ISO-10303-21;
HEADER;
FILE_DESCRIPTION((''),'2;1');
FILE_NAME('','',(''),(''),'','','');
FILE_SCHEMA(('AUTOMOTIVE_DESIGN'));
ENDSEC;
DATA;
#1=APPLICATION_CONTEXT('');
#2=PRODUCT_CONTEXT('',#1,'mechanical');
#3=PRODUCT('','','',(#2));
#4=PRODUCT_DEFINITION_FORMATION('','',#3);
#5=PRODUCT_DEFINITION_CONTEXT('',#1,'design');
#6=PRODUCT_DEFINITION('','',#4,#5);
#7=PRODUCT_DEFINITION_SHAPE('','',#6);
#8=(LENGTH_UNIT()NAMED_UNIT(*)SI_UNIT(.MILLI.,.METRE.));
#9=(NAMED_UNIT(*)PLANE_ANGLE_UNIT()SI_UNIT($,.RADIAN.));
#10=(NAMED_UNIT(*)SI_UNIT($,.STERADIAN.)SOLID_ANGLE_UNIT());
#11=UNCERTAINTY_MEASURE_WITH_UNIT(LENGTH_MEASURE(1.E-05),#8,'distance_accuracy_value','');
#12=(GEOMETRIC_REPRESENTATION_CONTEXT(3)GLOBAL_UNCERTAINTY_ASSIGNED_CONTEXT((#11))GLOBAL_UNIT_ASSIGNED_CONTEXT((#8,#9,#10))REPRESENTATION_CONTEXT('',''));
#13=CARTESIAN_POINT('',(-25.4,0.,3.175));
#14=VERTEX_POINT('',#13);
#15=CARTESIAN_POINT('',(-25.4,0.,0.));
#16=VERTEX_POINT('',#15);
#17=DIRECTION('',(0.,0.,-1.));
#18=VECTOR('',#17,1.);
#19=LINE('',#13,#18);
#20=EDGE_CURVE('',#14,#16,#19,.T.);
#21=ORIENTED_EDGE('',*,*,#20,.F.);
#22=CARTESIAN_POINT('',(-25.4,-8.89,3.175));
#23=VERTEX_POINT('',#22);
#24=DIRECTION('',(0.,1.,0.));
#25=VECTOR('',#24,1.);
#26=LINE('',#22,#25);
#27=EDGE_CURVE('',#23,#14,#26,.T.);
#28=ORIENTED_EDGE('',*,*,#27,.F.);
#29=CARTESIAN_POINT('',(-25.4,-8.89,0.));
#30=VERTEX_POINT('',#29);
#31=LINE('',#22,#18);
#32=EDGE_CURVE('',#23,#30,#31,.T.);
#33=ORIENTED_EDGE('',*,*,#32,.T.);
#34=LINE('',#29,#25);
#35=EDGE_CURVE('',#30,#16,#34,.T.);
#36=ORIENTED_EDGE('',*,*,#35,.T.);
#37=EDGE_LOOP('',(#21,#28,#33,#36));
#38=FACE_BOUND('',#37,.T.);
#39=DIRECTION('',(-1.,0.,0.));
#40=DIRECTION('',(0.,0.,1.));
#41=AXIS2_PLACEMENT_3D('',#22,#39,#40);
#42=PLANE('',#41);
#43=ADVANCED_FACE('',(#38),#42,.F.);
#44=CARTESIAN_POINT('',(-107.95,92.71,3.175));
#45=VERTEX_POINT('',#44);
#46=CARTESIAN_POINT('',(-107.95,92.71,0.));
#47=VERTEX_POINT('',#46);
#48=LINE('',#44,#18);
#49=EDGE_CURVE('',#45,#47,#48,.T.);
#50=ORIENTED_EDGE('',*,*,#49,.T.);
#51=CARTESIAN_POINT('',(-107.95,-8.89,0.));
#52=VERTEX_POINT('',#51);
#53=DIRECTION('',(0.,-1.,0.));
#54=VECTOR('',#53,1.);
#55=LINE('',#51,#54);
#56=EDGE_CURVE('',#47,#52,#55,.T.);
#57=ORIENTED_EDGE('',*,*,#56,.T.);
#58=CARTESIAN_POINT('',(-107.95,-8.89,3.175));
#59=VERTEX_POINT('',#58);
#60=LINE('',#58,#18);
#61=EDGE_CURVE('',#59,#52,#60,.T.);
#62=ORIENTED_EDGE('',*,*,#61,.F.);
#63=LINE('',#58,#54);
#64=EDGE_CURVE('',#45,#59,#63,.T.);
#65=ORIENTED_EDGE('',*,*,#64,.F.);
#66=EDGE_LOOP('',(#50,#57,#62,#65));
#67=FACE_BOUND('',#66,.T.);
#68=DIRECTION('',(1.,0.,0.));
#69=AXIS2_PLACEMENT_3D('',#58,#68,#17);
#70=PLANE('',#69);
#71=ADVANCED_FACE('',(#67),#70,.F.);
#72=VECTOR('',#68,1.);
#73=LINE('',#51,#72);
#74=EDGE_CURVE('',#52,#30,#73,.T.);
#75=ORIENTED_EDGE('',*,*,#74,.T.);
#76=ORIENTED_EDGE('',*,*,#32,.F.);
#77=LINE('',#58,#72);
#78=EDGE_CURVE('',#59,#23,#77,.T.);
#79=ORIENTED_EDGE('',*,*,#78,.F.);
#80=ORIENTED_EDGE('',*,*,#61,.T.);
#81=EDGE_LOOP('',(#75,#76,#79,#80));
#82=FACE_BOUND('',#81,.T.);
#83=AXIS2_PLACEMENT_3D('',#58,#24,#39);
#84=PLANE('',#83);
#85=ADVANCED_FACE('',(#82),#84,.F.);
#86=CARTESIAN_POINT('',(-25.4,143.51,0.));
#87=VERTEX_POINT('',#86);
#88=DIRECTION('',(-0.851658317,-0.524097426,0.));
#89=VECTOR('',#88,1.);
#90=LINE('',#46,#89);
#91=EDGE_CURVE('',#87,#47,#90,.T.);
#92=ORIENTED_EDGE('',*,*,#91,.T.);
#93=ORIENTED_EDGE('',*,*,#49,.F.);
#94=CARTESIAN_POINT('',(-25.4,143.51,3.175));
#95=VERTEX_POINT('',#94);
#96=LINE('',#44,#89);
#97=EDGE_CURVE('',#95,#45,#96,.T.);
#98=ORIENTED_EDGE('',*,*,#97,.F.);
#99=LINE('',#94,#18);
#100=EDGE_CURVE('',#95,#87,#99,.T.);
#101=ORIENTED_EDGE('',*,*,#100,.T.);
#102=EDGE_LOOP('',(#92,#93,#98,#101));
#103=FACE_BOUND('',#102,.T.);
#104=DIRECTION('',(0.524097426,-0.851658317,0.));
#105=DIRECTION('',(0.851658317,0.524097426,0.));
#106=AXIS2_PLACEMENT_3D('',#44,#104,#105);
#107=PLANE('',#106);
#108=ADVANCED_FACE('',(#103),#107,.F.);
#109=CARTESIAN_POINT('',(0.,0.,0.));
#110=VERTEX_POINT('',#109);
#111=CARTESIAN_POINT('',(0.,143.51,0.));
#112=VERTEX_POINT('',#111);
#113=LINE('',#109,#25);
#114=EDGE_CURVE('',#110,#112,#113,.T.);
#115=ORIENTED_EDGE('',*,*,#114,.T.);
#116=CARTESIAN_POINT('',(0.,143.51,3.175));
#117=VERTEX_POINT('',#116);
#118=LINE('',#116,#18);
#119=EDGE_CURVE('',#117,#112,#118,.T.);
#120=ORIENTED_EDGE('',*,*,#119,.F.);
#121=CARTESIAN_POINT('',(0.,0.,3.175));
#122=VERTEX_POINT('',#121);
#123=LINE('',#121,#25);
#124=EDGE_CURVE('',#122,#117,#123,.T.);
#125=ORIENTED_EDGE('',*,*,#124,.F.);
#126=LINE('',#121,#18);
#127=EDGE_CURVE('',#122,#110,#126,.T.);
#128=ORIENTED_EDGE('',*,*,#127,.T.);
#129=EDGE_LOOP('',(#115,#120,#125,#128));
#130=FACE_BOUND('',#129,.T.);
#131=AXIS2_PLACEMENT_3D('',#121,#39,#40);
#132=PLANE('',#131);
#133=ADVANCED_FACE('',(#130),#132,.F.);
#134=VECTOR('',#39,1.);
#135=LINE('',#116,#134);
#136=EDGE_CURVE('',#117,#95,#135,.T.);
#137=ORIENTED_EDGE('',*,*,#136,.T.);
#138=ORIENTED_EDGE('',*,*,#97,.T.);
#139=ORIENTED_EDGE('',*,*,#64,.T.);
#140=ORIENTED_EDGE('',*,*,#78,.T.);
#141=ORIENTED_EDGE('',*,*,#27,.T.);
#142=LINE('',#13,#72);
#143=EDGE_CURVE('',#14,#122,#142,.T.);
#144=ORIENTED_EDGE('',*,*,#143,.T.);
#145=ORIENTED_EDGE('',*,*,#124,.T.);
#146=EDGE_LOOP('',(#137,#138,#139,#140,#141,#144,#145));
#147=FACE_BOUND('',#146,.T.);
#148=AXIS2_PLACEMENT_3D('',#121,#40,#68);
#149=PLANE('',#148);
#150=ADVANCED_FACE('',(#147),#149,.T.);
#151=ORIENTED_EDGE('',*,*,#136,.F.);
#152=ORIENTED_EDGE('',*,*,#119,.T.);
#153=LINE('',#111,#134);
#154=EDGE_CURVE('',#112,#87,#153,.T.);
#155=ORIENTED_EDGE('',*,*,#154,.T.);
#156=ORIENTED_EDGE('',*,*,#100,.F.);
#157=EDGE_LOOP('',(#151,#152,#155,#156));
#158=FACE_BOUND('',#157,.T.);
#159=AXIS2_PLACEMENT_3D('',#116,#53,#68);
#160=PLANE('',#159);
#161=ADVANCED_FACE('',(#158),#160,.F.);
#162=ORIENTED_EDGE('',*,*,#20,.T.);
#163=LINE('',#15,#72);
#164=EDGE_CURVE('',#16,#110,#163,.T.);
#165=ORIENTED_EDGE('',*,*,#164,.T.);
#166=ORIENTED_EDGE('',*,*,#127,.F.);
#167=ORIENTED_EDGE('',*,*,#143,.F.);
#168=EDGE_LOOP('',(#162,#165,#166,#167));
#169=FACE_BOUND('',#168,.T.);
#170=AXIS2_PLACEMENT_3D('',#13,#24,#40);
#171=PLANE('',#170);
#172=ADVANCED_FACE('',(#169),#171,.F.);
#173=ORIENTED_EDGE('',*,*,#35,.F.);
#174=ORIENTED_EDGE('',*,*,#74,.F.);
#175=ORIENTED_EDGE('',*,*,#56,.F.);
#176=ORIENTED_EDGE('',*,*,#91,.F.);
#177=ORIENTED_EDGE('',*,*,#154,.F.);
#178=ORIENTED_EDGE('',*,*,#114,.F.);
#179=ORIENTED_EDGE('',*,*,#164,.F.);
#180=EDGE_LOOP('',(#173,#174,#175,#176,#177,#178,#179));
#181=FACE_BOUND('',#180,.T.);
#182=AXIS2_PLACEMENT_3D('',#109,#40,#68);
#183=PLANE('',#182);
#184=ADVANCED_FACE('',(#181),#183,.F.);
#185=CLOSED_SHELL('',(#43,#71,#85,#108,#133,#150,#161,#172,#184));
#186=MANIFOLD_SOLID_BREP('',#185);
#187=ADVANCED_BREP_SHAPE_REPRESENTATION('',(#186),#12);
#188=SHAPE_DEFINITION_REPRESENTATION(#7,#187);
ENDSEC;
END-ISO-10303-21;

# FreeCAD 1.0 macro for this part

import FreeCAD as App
import Part
import Sketcher
from FreeCAD import Vector
Q = App.Units.Quantity


def add_polygon(sketch, points):
    """Adds a closed chain of lines whose ends are joined by coincident constraints."""
    first, n = sketch.GeometryCount, len(points)
    for a, b in zip(points, points[1:] + points[:1]):
        sketch.addGeometry(Part.LineSegment(App.Vector(*a, 0), App.Vector(*b, 0)), False)
    for i in range(n):
        sketch.addConstraint(Sketcher.Constraint("Coincident", first + i, 2, first + (i + 1) % n, 1))

doc = App.newDocument("Part")
body = doc.addObject("PartDesign::Body", "Body")

sketch1 = body.newObject("Sketcher::SketchObject", "Sketch")
sketch1.AttachmentSupport = (doc.getObject("XY_Plane"), [""])
sketch1.MapMode = "FlatFace"
add_polygon(sketch1, [(0, 0), (0, 144), (-25, 144), (-108, 93), (-108, -9), (-25, -9), (-25, 0)])
sketch1.addConstraint(Sketcher.Constraint("Vertical", 0))
sketch1.addConstraint(Sketcher.Constraint("Horizontal", 1))
sketch1.addConstraint(Sketcher.Constraint("Vertical", 3))
sketch1.addConstraint(Sketcher.Constraint("Horizontal", 4))
sketch1.addConstraint(Sketcher.Constraint("Vertical", 5))
sketch1.addConstraint(Sketcher.Constraint("Horizontal", 6))
sketch1.addConstraint(Sketcher.Constraint("Coincident", 6, 2, -1, 1))
sketch1.addConstraint(Sketcher.Constraint("Vertical", 1, 2, 4, 2))
sketch1.addConstraint(Sketcher.Constraint("DistanceX", 1, 2, 1, 1, Q("1 in")))
sketch1.addConstraint(Sketcher.Constraint("DistanceY", 3, 2, 3, 1, Q("4 in")))
sketch1.addConstraint(Sketcher.Constraint("DistanceY", 2, 2, 1, 2, Q("2 in")))
sketch1.addConstraint(Sketcher.Constraint("DistanceX", 4, 1, 4, 2, Q("3.25 in")))
sketch1.addConstraint(Sketcher.Constraint("DistanceY", 0, 1, 0, 2, Q("5.65 in")))
pad1 = body.newObject("PartDesign::Pad", "Pad")
pad1.Profile = sketch1
pad1.Length = Q("0.125 in")

doc.recompute()
